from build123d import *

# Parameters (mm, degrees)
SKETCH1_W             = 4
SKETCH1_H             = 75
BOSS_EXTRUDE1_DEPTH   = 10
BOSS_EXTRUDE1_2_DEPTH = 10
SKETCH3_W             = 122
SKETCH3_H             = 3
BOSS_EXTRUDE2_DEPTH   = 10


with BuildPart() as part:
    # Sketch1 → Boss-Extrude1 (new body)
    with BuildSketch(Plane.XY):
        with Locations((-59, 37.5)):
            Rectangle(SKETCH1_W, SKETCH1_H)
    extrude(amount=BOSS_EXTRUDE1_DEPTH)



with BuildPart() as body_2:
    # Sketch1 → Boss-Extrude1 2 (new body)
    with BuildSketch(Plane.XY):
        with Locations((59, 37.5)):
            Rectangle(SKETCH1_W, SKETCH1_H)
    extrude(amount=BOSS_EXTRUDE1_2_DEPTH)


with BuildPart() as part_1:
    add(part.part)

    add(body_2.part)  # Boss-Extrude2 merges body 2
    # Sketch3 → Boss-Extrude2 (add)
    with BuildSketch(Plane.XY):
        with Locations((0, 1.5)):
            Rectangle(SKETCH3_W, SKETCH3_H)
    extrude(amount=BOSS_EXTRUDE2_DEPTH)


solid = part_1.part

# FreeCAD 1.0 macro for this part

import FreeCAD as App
import Part
import Sketcher

V = App.Vector


def add_polygon(sketch, points):
    """Adds a closed chain of lines whose ends are joined by coincident constraints."""
    first, n = sketch.GeometryCount, len(points)
    for a, b in zip(points, points[1:] + points[:1]):
        sketch.addGeometry(Part.LineSegment(App.Vector(*a, 0), App.Vector(*b, 0)), False)
    for i in range(n):
        sketch.addConstraint(Sketcher.Constraint("Coincident", first + i, 2, first + (i + 1) % n, 1))

doc = App.newDocument("Part")
body = doc.addObject("PartDesign::Body", "Body")

# Sketch on XY plane
sketch1 = body.newObject("Sketcher::SketchObject", "Sketch")
sketch1.AttachmentSupport = (doc.getObject("XY_Plane"), [""])
sketch1.MapMode = "FlatFace"
add_polygon(sketch1, [(-61, 75), (-61, 0), (-57, 0), (-57, 75)])  # lines 0-3
sketch1.addConstraint([
    Sketcher.Constraint("Vertical", 0),
    Sketcher.Constraint("Horizontal", 1),
    Sketcher.Constraint("Vertical", 2),
    Sketcher.Constraint("Horizontal", 3),
    Sketcher.Constraint("PointOnObject", 0, 2, -1),
    Sketcher.Constraint("DistanceX", 1, 1, 1, 2, 4.0),
    Sketcher.Constraint("DistanceY", 0, 2, 0, 1, 75.0),
    Sketcher.Constraint("DistanceX", 0, 2, -1, 1, 61.0),
])
pad1 = body.newObject("PartDesign::Pad", "Pad")
pad1.Profile = sketch1
pad1.Length = 10
body2 = doc.addObject("PartDesign::Body", "Body001")

# Sketch on XY plane
sketch2 = body2.newObject("Sketcher::SketchObject", "Sketch001")
sketch2.AttachmentSupport = (doc.getObject("XY_Plane001"), [""])
sketch2.MapMode = "FlatFace"
add_polygon(sketch2, [(57, 75), (57, 0), (61, 0), (61, 75)])  # lines 0-3
sketch2.addConstraint([
    Sketcher.Constraint("Vertical", 0),
    Sketcher.Constraint("Horizontal", 1),
    Sketcher.Constraint("Vertical", 2),
    Sketcher.Constraint("Horizontal", 3),
    Sketcher.Constraint("PointOnObject", 0, 2, -1),
    Sketcher.Constraint("DistanceX", 1, 1, 1, 2, 4.0),
    Sketcher.Constraint("DistanceY", 0, 2, 0, 1, 75.0),
    Sketcher.Constraint("DistanceX", -1, 1, 0, 2, 57.0),
])
pad2 = body2.newObject("PartDesign::Pad", "Pad001")
pad2.Profile = sketch2
pad2.Length = 10
body.AllowCompound = True
doc.recompute()

boolean = body.newObject("PartDesign::Boolean", "Boolean")
boolean.Type = "Fuse"
boolean.addObjects([body2])

# Sketch on XY plane
sketch3 = body.newObject("Sketcher::SketchObject", "Sketch002")
sketch3.AttachmentSupport = (doc.getObject("XY_Plane"), [""])
sketch3.MapMode = "FlatFace"
add_polygon(sketch3, [(-61, 3), (-61, 0), (61, 0), (61, 3)])  # lines 0-3
sketch3.addConstraint([
    Sketcher.Constraint("Vertical", 0),
    Sketcher.Constraint("Horizontal", 1),
    Sketcher.Constraint("Vertical", 2),
    Sketcher.Constraint("Horizontal", 3),
    Sketcher.Constraint("Symmetric", 0, 2, 1, 2, -1, 1),
    Sketcher.Constraint("DistanceX", 1, 1, 1, 2, 122.0),
    Sketcher.Constraint("DistanceY", 0, 2, 0, 1, 3.0),
])
pad3 = body.newObject("PartDesign::Pad", "Pad002")
pad3.Profile = sketch3
pad3.Length = 10

doc.recompute()
